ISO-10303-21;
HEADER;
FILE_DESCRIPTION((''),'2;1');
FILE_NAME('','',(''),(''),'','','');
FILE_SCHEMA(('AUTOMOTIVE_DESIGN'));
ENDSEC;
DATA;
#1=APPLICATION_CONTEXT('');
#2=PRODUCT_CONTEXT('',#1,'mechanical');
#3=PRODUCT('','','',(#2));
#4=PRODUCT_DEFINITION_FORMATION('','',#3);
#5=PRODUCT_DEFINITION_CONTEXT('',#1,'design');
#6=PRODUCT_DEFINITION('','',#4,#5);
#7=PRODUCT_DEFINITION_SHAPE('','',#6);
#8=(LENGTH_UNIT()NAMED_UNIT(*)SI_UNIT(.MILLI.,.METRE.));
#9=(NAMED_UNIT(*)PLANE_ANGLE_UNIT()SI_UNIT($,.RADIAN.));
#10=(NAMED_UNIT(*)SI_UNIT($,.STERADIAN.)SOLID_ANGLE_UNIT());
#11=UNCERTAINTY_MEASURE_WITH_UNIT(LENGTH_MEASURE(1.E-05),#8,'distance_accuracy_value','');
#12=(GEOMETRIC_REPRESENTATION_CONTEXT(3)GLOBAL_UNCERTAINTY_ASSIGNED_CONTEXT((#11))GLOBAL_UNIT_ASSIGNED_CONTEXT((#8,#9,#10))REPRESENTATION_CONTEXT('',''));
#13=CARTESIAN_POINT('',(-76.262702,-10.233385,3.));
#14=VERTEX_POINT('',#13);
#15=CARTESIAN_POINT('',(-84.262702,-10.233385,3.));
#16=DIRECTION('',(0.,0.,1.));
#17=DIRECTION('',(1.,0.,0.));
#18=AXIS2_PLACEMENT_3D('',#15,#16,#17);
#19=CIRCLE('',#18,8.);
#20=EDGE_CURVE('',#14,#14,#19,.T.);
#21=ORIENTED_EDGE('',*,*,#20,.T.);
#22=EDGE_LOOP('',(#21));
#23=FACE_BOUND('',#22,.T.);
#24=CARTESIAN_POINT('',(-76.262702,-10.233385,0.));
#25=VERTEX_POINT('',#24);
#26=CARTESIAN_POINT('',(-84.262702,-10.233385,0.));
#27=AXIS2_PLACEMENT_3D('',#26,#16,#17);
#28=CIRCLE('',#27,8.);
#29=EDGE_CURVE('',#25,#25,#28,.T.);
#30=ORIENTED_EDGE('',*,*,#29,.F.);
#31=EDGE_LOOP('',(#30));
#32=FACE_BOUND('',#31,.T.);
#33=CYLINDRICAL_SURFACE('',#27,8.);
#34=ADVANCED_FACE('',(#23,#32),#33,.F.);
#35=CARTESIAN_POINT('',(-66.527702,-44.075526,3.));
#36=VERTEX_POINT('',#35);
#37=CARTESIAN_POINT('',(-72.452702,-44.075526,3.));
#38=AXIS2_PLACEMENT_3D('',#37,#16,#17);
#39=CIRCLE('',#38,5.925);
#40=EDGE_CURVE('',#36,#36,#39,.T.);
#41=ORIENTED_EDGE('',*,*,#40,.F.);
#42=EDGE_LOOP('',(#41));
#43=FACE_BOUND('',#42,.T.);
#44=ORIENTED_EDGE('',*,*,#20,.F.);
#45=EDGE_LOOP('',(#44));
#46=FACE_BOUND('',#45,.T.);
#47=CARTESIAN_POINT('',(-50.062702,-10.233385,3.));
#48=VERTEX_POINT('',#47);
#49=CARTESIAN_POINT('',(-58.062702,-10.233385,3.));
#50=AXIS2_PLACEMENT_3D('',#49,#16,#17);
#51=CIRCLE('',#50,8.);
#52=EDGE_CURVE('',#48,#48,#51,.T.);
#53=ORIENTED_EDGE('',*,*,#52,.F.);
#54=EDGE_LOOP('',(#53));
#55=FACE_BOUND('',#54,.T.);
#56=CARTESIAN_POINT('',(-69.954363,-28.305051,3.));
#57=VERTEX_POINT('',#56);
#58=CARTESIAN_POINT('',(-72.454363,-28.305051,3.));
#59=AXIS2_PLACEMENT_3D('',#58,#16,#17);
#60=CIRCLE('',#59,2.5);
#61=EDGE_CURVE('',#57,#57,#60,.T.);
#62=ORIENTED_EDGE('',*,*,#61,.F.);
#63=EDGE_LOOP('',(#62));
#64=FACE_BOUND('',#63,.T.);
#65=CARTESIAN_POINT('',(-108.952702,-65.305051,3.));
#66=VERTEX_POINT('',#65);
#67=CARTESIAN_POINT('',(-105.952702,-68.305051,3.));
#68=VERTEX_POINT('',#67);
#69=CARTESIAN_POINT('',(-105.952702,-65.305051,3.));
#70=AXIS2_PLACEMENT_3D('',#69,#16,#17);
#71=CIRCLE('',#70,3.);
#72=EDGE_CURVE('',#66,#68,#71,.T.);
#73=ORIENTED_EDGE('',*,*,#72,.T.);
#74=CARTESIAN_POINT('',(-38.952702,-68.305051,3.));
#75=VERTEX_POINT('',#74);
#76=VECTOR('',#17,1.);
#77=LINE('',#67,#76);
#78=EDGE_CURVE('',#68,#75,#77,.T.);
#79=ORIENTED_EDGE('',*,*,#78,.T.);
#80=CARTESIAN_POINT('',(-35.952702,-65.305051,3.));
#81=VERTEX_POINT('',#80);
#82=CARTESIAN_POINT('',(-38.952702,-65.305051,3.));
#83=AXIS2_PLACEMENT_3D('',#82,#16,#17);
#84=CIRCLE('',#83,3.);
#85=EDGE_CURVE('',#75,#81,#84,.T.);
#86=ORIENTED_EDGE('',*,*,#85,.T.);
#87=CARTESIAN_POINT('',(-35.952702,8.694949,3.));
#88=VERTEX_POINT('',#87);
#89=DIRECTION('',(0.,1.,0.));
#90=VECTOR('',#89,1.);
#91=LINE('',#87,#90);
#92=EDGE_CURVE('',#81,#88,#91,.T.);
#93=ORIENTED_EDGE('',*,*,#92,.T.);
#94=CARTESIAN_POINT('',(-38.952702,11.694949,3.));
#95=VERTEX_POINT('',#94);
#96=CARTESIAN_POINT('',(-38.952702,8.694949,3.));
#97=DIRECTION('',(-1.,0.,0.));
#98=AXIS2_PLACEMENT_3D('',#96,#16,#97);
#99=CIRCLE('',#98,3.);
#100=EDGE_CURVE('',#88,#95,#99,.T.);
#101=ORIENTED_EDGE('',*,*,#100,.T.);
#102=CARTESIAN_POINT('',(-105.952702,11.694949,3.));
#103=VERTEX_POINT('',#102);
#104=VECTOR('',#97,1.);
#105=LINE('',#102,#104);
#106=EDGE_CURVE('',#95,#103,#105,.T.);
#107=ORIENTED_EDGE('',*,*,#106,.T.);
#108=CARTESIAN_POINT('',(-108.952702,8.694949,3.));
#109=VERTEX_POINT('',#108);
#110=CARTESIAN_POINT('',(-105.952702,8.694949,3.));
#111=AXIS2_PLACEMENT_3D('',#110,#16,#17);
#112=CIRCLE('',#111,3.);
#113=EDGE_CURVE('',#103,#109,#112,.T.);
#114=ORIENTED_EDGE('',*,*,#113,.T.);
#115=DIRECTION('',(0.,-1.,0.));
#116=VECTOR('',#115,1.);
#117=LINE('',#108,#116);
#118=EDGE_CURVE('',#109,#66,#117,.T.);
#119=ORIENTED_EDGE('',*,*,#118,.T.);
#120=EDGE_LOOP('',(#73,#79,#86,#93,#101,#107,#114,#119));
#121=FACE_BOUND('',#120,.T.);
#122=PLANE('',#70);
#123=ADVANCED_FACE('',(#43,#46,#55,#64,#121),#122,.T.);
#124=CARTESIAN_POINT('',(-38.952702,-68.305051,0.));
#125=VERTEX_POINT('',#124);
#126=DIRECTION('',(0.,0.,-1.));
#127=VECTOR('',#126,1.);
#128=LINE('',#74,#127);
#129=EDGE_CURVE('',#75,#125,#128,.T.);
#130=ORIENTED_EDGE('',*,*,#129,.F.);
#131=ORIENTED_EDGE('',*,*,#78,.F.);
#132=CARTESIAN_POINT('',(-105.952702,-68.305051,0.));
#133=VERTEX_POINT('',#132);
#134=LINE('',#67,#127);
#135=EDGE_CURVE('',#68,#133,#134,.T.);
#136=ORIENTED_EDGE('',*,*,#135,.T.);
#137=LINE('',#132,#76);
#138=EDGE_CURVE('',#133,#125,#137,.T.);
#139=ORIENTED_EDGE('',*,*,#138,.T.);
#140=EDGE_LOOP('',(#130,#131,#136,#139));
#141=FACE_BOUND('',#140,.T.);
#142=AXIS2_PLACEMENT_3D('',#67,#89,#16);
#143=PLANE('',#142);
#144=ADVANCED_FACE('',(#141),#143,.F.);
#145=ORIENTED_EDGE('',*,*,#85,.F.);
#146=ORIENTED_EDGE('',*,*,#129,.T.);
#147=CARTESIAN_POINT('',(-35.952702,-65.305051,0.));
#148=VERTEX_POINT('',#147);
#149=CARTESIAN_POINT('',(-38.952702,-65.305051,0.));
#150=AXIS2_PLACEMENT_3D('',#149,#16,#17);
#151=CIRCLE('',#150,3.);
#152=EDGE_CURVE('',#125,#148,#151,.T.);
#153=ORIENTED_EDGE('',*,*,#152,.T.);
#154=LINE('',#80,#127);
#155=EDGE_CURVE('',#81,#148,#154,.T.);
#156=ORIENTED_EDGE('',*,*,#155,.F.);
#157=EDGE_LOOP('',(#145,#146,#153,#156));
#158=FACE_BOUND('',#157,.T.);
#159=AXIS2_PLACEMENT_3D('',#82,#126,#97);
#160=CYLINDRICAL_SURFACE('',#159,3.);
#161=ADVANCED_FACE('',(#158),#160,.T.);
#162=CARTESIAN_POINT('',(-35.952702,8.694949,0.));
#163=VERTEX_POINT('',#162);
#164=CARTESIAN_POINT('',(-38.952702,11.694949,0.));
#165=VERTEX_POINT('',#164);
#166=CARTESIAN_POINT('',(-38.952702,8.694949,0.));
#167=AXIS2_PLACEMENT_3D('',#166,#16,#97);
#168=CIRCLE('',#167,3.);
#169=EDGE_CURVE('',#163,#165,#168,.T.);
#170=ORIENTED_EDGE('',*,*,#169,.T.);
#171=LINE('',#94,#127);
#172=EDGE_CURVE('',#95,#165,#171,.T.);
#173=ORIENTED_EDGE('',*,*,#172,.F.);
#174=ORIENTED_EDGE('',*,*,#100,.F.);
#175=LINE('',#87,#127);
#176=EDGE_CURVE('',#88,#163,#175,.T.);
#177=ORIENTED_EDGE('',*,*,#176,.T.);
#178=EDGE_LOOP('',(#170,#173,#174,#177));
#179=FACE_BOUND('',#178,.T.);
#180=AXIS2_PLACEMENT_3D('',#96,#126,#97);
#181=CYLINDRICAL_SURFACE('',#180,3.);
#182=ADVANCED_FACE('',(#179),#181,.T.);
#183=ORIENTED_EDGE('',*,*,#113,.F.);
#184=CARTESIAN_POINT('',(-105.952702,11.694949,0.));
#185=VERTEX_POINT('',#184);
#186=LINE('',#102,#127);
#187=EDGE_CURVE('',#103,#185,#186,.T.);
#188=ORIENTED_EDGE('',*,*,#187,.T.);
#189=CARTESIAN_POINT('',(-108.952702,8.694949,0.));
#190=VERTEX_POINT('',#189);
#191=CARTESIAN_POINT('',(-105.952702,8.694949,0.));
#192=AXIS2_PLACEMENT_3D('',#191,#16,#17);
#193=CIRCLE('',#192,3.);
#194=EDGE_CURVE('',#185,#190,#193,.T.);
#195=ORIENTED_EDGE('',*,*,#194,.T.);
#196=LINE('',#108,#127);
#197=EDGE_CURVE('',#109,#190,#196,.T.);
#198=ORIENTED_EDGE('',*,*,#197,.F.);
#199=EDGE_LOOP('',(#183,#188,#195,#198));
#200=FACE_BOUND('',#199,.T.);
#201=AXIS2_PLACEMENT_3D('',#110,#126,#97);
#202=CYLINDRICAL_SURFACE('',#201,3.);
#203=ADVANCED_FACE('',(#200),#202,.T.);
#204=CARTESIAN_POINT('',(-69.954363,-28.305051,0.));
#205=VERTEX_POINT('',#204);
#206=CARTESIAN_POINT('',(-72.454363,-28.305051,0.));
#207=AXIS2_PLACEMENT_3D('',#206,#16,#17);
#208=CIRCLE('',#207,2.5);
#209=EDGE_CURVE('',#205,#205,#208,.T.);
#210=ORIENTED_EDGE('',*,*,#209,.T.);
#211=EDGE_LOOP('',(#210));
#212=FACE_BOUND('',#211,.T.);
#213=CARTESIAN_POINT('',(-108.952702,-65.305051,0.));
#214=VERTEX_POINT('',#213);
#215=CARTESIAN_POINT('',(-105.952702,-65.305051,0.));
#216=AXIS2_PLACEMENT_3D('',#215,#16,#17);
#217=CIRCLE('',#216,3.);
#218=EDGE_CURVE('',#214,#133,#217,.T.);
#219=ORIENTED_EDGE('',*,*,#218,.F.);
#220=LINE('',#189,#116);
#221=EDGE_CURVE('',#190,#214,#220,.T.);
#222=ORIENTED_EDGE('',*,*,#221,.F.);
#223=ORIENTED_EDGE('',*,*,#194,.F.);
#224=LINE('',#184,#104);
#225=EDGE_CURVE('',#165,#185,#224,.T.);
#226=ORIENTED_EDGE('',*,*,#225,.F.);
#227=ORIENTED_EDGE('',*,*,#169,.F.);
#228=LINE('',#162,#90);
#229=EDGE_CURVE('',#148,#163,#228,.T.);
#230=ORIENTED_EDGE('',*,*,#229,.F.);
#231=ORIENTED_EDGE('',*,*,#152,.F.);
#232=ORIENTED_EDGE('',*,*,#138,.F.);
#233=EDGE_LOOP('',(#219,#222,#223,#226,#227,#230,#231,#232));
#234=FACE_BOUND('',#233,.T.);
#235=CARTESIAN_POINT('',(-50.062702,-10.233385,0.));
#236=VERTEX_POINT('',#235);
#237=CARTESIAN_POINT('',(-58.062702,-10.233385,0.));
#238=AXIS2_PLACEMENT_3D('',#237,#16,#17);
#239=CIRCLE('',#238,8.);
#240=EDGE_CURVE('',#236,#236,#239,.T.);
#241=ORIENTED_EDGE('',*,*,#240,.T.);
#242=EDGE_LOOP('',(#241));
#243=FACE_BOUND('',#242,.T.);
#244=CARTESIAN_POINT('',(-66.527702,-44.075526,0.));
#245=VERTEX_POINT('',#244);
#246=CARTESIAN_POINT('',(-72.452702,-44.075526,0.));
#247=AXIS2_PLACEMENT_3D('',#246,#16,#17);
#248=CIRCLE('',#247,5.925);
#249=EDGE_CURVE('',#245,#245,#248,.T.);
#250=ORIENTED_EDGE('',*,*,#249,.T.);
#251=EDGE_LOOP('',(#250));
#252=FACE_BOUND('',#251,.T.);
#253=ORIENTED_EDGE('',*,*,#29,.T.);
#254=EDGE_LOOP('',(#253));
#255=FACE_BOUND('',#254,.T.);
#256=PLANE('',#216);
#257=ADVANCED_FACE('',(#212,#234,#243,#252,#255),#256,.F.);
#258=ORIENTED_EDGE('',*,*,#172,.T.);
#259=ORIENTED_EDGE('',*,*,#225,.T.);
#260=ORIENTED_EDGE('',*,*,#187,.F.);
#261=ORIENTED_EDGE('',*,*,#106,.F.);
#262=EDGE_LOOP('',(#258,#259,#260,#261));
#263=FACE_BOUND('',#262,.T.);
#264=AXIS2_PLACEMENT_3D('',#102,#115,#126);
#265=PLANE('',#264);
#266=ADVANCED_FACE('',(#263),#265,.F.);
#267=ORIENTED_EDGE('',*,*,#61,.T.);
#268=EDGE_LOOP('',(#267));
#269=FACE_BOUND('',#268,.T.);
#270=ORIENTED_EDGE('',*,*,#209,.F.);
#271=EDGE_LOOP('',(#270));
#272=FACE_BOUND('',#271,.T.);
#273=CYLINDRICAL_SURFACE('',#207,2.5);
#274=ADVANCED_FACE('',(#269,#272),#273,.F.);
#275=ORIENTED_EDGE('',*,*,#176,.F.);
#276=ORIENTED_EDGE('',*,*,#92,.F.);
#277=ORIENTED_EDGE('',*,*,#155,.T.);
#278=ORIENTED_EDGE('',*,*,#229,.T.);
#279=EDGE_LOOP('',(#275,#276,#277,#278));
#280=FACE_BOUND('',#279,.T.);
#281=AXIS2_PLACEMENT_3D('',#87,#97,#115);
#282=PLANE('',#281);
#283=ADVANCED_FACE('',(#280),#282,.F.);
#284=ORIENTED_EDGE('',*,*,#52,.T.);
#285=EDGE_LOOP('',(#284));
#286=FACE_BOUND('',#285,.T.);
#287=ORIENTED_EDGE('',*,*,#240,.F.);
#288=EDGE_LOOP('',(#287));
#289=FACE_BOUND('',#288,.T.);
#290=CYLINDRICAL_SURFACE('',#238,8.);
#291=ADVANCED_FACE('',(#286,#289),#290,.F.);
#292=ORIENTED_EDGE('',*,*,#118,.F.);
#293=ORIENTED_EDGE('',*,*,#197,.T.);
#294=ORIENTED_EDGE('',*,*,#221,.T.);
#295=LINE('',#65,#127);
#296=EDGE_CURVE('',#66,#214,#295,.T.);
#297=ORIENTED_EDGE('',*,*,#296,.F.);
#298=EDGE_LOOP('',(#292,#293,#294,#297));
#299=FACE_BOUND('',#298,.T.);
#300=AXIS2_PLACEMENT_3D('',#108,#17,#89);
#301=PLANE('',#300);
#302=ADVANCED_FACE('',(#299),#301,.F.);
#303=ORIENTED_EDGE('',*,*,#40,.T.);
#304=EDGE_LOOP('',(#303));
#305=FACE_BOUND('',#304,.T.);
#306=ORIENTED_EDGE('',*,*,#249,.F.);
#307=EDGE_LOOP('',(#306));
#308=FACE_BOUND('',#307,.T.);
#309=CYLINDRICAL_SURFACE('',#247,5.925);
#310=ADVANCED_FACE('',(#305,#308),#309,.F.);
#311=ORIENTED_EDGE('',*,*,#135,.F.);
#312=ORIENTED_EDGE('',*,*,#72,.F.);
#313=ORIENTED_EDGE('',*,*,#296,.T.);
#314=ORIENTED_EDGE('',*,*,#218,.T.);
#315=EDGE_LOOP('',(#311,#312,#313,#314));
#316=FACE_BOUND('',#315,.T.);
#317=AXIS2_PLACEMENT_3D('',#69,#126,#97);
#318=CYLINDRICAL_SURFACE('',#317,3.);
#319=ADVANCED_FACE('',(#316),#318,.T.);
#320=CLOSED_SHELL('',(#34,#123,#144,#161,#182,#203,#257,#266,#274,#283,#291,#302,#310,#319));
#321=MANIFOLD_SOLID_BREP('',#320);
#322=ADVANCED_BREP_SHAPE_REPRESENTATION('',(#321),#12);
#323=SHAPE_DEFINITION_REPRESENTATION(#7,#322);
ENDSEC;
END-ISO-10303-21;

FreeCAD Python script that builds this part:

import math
import FreeCAD as App
import Part
import Sketcher
from FreeCAD import Vector
Q = App.Units.Quantity

doc = App.newDocument("Part")
params = doc.addObject("Spreadsheet::Sheet", "Params")
for row, (alias, value) in enumerate([
    ("sketch1_radius", "3 mm"),
    ("sketch1_width", "67 mm"),
    ("sketch1_height", "74 mm"),
    ("pad1_length", "3 mm"),
    ("sketch2_diameter", "16 mm"),
    ("sketch2_diameter2", "5 mm"),
    ("sketch2_diameter3", "11.85 mm"),
    ("pocket1_length", "3 mm"),
], start=1):
    params.set(f"A{row}", alias)
    params.set(f"B{row}", "=" + value)
    params.setAlias(f"B{row}", alias)

body = doc.addObject("PartDesign::Body", "Body")

sketch1 = body.newObject("Sketcher::SketchObject", "Sketch")
sketch1.AttachmentSupport = (doc.getObject("XY_Plane"), [""])
sketch1.MapMode = "FlatFace"
sketch1.addGeometry([
    Part.LineSegment(Vector(-39, 11.7, 0), Vector(-106, 11.7, 0)),
    Part.ArcOfCircle(Part.Circle(Vector(-106, 8.7, 0), Vector(0, 0, 1), 3), math.radians(90), math.radians(180)),
    Part.LineSegment(Vector(-109, 8.7, 0), Vector(-109, -65.3, 0)),
    Part.ArcOfCircle(Part.Circle(Vector(-106, -65.3, 0), Vector(0, 0, 1), 3), math.radians(180), math.radians(270)),
    Part.LineSegment(Vector(-106, -68.3, 0), Vector(-39, -68.3, 0)),
    Part.ArcOfCircle(Part.Circle(Vector(-39, -65.3, 0), Vector(0, 0, 1), 3), math.radians(-90), math.radians(0)),
    Part.LineSegment(Vector(-36, -65.3, 0), Vector(-36, 8.7, 0)),
    Part.ArcOfCircle(Part.Circle(Vector(-39, 8.7, 0), Vector(0, 0, 1), 3), math.radians(0), math.radians(90)),
], False)
sketch1.addConstraint([
    Sketcher.Constraint("Tangent", 0, 2, 1, 1),
    Sketcher.Constraint("Tangent", 1, 2, 2, 1),
    Sketcher.Constraint("Tangent", 2, 2, 3, 1),
    Sketcher.Constraint("Tangent", 3, 2, 4, 1),
    Sketcher.Constraint("Tangent", 4, 2, 5, 1),
    Sketcher.Constraint("Tangent", 5, 2, 6, 1),
    Sketcher.Constraint("Tangent", 6, 2, 7, 1),
    Sketcher.Constraint("Tangent", 7, 2, 0, 1),
    Sketcher.Constraint("Horizontal", 0),
    Sketcher.Constraint("Vertical", 2),
    Sketcher.Constraint("Horizontal", 4),
    Sketcher.Constraint("Vertical", 6),
    Sketcher.Constraint("Equal", 1, 3),
    Sketcher.Constraint("Equal", 3, 5),
    Sketcher.Constraint("Equal", 5, 7),
    Sketcher.Constraint("Radius", 1, Q("3 mm")),
    Sketcher.Constraint("DistanceX", 0, 2, 0, 1, Q("67 mm")),
    Sketcher.Constraint("DistanceY", 2, 2, 2, 1, Q("74 mm")),
    Sketcher.Constraint("DistanceY", -1, 1, 1, 3, Q("8.694949 mm")),
    Sketcher.Constraint("DistanceX", 1, 3, -1, 1, Q("105.952702 mm")),
])
sketch1.setExpression("Constraints[15]", "Params.sketch1_radius")
sketch1.setExpression("Constraints[16]", "Params.sketch1_width")
sketch1.setExpression("Constraints[17]", "Params.sketch1_height")
pad1 = body.newObject("PartDesign::Pad", "Pad")
pad1.Profile = sketch1
pad1.setExpression("Length", "Params.pad1_length")

sketch2 = body.newObject("Sketcher::SketchObject", "Sketch001")
sketch2.AttachmentSupport = (doc.getObject("XY_Plane"), [""])
sketch2.MapMode = "FlatFace"
sketch2.AttachmentOffset = App.Placement(Vector(0, 0, 3), App.Rotation())
sketch2.addGeometry([
    Part.Circle(Vector(-84.3, -10.2, 0), Vector(0, 0, 1), 8),
    Part.Circle(Vector(-58.1, -10.2, 0), Vector(0, 0, 1), 8),
    Part.Circle(Vector(-72.5, -28.3, 0), Vector(0, 0, 1), 2.5),
    Part.Circle(Vector(-72.5, -44.1, 0), Vector(0, 0, 1), 5.9),
], False)
sketch2.addConstraint([
    Sketcher.Constraint("Equal", 0, 1),
    Sketcher.Constraint("Horizontal", 0, 3, 1, 3),
    Sketcher.Constraint("Diameter", 0, Q("16 mm")),
    Sketcher.Constraint("Diameter", 2, Q("5 mm")),
    Sketcher.Constraint("Diameter", 3, Q("11.85 mm")),
    Sketcher.Constraint("DistanceX", 0, 3, 1, 3, Q("26.2 mm")),
    Sketcher.Constraint("DistanceX", 0, 3, 3, 3, Q("11.81 mm")),
    Sketcher.Constraint("DistanceY", 2, 3, -1, 1, Q("28.305051 mm")),
    Sketcher.Constraint("DistanceX", 0, 3, 2, 3, Q("11.80834 mm")),
    Sketcher.Constraint("DistanceY", 3, 3, 0, 3, Q("33.842141 mm")),
    Sketcher.Constraint("DistanceX", 0, 3, -1, 1, Q("84.262702 mm")),
    Sketcher.Constraint("DistanceY", 0, 3, -1, 1, Q("10.233385 mm")),
])
sketch2.setExpression("Constraints[2]", "Params.sketch2_diameter")
sketch2.setExpression("Constraints[3]", "Params.sketch2_diameter2")
sketch2.setExpression("Constraints[4]", "Params.sketch2_diameter3")
pocket1 = body.newObject("PartDesign::Pocket", "Pocket")
pocket1.Profile = sketch2
pocket1.setExpression("Length", "Params.pocket1_length")

doc.recompute()
